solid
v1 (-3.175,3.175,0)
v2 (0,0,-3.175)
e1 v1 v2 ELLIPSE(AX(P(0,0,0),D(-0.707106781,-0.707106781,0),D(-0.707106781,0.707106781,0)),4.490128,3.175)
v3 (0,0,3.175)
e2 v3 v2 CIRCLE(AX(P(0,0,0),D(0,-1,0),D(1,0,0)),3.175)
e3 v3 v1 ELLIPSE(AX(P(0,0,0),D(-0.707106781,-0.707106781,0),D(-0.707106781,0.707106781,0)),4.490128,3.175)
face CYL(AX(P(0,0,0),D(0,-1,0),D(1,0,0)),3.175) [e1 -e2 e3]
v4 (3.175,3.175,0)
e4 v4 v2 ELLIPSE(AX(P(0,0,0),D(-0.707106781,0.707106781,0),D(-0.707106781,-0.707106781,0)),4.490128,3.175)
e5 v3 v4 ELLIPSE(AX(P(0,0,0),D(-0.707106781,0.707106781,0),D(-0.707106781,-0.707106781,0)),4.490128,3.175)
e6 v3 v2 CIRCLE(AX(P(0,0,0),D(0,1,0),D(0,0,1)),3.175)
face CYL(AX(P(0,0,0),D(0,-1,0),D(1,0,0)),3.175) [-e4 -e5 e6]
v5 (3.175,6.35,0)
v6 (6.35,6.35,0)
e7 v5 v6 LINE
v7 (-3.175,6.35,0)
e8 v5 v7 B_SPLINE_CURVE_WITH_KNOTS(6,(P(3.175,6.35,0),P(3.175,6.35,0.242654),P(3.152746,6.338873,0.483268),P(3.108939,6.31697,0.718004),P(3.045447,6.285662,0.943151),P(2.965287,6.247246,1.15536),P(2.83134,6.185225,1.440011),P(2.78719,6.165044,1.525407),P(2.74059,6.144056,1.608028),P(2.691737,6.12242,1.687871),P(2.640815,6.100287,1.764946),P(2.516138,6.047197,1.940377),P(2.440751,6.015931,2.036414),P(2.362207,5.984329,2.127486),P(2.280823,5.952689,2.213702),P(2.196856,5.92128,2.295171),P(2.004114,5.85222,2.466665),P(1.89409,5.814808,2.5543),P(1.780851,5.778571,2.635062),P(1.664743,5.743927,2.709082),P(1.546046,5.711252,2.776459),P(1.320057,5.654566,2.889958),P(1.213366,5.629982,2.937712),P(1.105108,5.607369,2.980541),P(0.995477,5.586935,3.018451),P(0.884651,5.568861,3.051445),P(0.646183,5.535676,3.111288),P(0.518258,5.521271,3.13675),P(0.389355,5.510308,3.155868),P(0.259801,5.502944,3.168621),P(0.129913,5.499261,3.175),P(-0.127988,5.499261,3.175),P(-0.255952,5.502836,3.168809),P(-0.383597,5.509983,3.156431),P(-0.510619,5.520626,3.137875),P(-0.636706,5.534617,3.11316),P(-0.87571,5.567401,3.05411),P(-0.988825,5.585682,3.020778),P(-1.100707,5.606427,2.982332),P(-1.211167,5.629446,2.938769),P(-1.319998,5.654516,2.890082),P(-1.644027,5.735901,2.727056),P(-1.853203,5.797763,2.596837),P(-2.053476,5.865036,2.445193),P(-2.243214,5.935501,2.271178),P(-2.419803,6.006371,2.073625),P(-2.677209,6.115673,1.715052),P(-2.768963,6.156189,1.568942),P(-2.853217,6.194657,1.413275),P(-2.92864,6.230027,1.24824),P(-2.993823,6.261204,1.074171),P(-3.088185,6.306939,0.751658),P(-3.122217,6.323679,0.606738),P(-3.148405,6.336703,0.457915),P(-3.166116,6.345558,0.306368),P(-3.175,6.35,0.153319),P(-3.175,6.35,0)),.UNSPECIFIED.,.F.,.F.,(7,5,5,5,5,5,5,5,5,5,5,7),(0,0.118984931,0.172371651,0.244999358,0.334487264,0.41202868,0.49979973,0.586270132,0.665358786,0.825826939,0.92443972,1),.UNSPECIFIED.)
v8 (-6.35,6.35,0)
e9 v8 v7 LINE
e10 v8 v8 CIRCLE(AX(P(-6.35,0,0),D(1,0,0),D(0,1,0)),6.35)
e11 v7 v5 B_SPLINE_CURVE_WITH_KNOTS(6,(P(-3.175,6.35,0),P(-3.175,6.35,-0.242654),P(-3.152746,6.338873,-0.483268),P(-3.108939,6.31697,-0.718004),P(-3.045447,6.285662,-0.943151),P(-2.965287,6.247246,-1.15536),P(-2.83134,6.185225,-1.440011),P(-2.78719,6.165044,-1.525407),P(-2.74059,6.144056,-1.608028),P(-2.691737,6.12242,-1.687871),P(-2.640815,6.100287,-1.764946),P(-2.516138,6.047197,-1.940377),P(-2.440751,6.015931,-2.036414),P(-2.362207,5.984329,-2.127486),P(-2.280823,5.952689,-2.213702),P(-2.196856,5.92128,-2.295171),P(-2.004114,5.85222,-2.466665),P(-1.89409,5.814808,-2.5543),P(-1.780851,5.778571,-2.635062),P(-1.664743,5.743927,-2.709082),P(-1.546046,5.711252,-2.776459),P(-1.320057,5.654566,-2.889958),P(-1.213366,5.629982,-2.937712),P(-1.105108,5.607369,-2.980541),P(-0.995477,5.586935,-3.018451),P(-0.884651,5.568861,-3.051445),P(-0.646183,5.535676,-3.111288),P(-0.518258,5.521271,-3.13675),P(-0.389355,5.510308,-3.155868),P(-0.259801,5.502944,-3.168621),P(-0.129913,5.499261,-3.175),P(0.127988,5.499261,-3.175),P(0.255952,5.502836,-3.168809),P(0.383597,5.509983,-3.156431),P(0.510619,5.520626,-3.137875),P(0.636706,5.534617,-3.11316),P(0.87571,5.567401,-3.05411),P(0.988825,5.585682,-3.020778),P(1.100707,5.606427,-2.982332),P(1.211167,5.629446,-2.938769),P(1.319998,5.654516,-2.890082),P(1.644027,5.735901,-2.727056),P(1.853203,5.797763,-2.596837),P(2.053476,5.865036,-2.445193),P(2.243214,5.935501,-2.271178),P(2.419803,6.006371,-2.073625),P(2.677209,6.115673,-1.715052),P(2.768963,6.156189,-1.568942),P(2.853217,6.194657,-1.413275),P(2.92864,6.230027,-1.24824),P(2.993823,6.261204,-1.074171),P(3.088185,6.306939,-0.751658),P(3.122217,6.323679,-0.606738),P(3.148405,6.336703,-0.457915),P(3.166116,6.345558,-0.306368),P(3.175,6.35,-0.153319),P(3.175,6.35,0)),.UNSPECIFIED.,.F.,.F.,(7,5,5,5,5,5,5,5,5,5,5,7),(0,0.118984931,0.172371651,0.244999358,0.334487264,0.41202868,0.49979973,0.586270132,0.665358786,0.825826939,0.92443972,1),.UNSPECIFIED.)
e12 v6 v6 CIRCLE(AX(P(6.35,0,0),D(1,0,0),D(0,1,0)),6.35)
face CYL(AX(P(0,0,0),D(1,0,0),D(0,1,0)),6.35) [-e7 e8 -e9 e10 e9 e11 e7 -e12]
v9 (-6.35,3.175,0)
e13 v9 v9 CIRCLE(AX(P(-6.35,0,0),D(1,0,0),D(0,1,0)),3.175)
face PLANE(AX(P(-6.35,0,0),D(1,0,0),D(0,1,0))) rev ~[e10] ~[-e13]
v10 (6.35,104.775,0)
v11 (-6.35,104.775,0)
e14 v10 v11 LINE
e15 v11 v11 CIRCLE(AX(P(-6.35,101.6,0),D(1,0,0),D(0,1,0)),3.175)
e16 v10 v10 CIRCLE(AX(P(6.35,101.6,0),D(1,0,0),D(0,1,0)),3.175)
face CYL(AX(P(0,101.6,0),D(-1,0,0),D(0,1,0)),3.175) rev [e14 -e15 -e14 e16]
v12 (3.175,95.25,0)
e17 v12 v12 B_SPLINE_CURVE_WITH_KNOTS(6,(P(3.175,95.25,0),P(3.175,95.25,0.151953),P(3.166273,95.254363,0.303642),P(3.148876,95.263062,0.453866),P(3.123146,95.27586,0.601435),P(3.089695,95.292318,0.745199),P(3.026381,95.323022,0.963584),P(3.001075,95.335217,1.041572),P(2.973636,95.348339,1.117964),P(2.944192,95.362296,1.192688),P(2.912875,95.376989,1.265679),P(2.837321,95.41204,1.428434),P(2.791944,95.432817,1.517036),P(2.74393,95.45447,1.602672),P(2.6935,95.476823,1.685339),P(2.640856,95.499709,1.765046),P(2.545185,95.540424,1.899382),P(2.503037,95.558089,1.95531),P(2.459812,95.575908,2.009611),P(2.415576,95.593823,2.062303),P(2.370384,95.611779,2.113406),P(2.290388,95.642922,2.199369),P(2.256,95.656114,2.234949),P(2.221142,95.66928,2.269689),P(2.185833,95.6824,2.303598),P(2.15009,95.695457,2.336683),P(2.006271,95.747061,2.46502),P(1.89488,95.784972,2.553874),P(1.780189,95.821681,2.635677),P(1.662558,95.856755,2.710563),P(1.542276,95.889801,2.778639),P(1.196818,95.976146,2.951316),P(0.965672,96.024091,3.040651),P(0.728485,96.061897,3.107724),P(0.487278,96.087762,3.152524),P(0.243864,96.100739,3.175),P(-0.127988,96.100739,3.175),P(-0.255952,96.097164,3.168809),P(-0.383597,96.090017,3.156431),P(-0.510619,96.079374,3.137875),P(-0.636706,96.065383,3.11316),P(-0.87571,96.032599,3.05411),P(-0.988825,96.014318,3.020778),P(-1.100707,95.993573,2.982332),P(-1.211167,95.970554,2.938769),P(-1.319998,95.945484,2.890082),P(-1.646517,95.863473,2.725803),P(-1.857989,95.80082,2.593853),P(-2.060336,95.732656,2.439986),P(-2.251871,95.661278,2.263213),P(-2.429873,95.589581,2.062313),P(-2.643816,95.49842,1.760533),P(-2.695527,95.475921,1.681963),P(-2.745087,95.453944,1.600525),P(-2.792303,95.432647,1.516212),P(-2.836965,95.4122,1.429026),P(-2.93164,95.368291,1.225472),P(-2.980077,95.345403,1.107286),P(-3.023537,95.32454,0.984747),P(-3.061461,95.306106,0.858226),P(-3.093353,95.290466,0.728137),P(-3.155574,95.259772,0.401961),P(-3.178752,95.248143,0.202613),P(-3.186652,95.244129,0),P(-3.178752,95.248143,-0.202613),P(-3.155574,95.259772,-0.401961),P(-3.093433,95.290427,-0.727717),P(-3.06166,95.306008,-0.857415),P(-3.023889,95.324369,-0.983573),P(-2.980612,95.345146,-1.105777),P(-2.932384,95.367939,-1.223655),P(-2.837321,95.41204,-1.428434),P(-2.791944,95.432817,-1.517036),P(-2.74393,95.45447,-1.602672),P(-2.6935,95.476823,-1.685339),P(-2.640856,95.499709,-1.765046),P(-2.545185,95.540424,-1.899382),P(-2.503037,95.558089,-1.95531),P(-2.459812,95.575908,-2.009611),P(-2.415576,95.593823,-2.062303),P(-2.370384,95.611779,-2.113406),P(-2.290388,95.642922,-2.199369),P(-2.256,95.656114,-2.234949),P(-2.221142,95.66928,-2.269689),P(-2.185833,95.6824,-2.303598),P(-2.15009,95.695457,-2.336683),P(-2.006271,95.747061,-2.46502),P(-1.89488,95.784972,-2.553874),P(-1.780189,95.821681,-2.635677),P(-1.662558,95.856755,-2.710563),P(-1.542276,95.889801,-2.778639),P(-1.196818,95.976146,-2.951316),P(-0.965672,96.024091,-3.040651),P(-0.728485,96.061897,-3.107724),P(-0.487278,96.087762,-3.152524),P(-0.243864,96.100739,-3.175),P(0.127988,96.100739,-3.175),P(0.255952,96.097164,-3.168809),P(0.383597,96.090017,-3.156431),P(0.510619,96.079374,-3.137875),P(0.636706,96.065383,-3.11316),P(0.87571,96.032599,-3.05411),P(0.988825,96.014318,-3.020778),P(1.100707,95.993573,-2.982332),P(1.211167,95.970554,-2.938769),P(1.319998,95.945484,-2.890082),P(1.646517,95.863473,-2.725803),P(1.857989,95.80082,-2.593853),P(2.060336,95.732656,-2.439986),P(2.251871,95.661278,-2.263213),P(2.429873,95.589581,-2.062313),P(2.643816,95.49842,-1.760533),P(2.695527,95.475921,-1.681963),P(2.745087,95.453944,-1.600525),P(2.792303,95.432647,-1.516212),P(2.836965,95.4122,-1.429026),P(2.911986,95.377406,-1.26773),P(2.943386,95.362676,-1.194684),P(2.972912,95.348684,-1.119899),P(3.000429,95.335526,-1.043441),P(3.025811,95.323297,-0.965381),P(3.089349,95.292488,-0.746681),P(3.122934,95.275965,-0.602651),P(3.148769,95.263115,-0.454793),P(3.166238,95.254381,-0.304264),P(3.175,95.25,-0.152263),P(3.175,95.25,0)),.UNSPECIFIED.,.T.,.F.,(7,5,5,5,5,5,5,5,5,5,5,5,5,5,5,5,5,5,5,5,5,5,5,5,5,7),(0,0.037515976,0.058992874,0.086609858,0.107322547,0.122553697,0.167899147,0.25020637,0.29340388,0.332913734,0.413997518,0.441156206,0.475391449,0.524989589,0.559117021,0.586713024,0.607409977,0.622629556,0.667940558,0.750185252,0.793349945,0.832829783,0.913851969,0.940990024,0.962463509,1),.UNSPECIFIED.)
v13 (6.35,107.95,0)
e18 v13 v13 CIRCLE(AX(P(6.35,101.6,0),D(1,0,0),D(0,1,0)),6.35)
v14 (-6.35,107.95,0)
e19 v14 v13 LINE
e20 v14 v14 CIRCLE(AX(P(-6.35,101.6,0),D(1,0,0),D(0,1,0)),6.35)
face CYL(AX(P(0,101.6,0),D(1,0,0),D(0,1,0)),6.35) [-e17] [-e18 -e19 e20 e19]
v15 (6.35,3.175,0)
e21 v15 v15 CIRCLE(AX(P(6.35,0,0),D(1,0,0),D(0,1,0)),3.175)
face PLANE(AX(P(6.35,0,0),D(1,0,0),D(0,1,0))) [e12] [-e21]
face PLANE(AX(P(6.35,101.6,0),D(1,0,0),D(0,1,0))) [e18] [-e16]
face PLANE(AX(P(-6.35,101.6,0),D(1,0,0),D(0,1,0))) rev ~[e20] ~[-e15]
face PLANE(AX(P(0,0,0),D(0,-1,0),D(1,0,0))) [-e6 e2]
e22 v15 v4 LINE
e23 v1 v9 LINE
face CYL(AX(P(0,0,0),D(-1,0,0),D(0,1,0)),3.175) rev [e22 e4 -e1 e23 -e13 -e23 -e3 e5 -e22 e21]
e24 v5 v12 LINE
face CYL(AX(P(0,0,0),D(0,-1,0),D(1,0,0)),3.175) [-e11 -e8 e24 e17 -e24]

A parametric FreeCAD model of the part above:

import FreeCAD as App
import Part
import Sketcher
Q = App.Units.Quantity

doc = App.newDocument("Part")
body = doc.addObject("PartDesign::Body", "Body")

sketch1 = doc.addObject("Sketcher::SketchObject", "Sketch")
body.addObject(sketch1)
sketch1.AttachmentSupport = (doc.YZ_Plane, [""])
sketch1.MapMode = "FlatFace"
sketch1.addGeometry(Part.Circle(App.Vector(0, 0, 0), App.Vector(0, 0, 1), 6.35), False)
sketch1.addGeometry(Part.Circle(App.Vector(0, 0, 0), App.Vector(0, 0, 1), 3.175), False)
sketch1.addConstraint(Sketcher.Constraint("Coincident", 0, 3, -1, 1))
sketch1.addConstraint(Sketcher.Constraint("Coincident", 1, 3, -1, 1))
sketch1.addConstraint(Sketcher.Constraint("Diameter", 0, Q("0.5 in")))
sketch1.addConstraint(Sketcher.Constraint("Diameter", 1, Q("0.25 in")))
pad1 = doc.addObject("PartDesign::Pad", "Pad")
body.addObject(pad1)
pad1.Profile = sketch1
pad1.Length = Q("0.5 in")
pad1.Midplane = True
body2 = doc.addObject("PartDesign::Body", "Body001")

sketch2 = doc.addObject("Sketcher::SketchObject", "Sketch001")
body2.addObject(sketch2)
sketch2.AttachmentSupport = (doc.getObject("YZ_Plane001"), [""])
sketch2.MapMode = "FlatFace"
sketch2.addGeometry(Part.Circle(App.Vector(101.6, 0, 0), App.Vector(0, 0, 1), 6.35), False)
sketch2.addGeometry(Part.Circle(App.Vector(101.6, 0, 0), App.Vector(0, 0, 1), 3.175), False)
sketch2.addConstraint(Sketcher.Constraint("Coincident", 1, 3, 0, 3))
sketch2.addConstraint(Sketcher.Constraint("PointOnObject", 0, 3, -1))
sketch2.addConstraint(Sketcher.Constraint("Diameter", 0, Q("0.5 in")))
sketch2.addConstraint(Sketcher.Constraint("Diameter", 1, Q("0.25 in")))
sketch2.addConstraint(Sketcher.Constraint("DistanceX", -1, 1, 0, 3, Q("4 in")))
pad2 = doc.addObject("PartDesign::Pad", "Pad001")
body2.addObject(pad2)
pad2.Profile = sketch2
pad2.Length = Q("0.5 in")
pad2.Midplane = True
body.AllowCompound = True
doc.recompute()

boolean = doc.addObject("PartDesign::Boolean", "Boolean")
body.addObject(boolean)
boolean.Type = "Fuse"
boolean.addObjects([body2])

sketch3 = doc.addObject("Sketcher::SketchObject", "Sketch002")
body.addObject(sketch3)
sketch3.AttachmentSupport = (doc.XZ_Plane, [""])
sketch3.MapMode = "FlatFace"
sketch3.addGeometry(Part.Circle(App.Vector(0, 0, 0), App.Vector(0, 0, 1), 3.175), False)
sketch3.addConstraint(Sketcher.Constraint("Coincident", 0, 3, -1, 1))
sketch3.addConstraint(Sketcher.Constraint("Diameter", 0, Q("0.25 in")))
pad3 = doc.addObject("PartDesign::Pad", "Pad002")
body.addObject(pad3)
pad3.Profile = sketch3
pad3.Length = 97.100739
pad3.Reversed = True

doc.recompute()
